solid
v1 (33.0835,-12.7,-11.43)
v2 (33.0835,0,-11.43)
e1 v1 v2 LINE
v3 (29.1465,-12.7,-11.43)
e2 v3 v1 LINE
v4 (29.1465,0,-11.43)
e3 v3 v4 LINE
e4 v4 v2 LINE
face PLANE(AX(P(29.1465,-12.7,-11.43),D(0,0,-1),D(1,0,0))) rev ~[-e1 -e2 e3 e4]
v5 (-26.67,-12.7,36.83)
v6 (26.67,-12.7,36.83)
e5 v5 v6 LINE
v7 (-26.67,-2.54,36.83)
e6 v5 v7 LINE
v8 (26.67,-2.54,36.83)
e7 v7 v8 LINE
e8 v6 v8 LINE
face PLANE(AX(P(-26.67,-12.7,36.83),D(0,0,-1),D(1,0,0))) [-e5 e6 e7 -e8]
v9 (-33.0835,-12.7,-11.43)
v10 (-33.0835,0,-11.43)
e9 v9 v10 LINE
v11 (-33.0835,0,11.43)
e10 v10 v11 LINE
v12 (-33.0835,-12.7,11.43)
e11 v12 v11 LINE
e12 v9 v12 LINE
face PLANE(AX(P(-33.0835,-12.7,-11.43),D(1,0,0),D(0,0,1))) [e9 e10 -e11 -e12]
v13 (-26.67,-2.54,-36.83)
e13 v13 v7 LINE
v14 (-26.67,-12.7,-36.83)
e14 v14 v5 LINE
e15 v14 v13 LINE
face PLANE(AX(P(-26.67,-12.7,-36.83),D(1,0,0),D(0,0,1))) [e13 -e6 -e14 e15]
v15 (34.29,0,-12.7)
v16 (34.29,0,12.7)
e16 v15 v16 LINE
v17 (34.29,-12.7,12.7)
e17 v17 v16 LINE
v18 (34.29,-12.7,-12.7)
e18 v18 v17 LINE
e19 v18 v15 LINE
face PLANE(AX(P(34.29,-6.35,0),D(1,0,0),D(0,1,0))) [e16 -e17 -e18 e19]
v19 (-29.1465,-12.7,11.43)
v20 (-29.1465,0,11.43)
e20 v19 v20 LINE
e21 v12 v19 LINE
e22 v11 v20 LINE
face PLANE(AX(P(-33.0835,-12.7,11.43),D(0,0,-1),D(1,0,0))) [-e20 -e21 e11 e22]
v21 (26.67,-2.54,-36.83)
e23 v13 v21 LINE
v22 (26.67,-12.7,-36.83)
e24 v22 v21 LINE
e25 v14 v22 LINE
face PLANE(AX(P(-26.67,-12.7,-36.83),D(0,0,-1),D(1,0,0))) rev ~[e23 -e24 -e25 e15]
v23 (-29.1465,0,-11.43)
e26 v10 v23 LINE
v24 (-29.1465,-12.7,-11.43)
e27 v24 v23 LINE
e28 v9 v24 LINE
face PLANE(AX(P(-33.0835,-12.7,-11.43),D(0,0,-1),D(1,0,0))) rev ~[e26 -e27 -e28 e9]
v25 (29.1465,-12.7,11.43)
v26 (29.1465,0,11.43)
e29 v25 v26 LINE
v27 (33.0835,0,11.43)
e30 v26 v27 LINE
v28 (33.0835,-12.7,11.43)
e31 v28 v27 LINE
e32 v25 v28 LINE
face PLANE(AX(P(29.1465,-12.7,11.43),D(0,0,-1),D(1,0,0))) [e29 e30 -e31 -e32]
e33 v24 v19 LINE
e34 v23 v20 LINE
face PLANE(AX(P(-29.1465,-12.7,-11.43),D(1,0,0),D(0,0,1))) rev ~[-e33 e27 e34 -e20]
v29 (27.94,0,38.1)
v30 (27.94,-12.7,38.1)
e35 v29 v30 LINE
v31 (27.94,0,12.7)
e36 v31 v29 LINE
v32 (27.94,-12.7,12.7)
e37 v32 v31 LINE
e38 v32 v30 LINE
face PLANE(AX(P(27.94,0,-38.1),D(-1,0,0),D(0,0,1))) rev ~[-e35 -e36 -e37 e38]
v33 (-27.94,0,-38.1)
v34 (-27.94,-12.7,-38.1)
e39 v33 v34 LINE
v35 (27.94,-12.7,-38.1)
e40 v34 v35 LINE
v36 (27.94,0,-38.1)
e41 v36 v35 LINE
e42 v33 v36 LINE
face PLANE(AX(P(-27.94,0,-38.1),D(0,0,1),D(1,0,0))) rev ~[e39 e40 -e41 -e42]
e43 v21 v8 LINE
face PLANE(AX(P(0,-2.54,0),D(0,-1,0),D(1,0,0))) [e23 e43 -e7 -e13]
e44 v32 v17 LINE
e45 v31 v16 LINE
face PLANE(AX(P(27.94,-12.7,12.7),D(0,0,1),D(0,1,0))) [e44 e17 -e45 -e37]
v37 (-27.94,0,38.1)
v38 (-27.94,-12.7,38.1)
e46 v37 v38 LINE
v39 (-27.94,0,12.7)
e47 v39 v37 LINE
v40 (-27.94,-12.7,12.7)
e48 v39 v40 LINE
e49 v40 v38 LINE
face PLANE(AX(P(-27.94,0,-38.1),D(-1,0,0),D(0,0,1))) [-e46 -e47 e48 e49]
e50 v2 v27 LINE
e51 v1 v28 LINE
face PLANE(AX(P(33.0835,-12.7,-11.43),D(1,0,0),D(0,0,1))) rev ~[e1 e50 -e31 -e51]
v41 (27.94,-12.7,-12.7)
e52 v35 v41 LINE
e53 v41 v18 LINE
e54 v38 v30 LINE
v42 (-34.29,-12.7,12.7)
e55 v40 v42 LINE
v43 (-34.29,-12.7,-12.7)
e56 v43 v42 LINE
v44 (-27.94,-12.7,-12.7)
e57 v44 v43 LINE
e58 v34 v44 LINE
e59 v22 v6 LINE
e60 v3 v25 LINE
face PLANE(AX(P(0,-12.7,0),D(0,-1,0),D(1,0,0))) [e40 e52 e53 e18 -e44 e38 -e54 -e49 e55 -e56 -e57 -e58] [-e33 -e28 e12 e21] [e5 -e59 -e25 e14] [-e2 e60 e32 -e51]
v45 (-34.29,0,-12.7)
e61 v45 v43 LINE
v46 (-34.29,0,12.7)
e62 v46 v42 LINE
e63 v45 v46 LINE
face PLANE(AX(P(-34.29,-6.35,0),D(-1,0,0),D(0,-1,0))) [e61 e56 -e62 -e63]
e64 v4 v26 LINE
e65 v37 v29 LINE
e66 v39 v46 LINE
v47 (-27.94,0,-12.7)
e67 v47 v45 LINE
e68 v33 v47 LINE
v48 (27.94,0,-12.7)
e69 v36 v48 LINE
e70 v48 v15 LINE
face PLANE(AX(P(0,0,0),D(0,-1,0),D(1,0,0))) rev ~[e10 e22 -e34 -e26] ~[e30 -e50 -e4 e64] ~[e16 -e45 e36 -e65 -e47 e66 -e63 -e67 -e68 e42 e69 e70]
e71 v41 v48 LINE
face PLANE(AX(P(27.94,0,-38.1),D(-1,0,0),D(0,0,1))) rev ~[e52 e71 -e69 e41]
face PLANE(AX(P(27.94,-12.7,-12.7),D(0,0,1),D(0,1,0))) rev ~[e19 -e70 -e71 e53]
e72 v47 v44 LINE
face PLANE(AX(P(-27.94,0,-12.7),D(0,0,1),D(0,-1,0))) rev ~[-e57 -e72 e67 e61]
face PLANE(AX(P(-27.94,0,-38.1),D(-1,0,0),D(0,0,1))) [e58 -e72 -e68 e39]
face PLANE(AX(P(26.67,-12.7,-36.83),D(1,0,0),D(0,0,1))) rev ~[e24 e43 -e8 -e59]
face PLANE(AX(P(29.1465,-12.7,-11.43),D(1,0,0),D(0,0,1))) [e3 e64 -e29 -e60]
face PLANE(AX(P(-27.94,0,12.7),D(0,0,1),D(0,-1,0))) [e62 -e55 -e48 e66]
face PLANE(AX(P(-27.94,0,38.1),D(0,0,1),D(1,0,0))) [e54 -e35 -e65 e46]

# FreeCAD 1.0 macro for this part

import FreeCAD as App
import Part
import Sketcher

V = App.Vector
Q = App.Units.Quantity


def add_polygon(sketch, points):
    """Adds a closed chain of lines whose ends are joined by coincident constraints."""
    first, n = sketch.GeometryCount, len(points)
    for a, b in zip(points, points[1:] + points[:1]):
        sketch.addGeometry(Part.LineSegment(App.Vector(*a, 0), App.Vector(*b, 0)), False)
    for i in range(n):
        sketch.addConstraint(Sketcher.Constraint("Coincident", first + i, 2, first + (i + 1) % n, 1))

doc = App.newDocument("Part")
params = doc.addObject("Spreadsheet::Sheet", "Params")
for row, (alias, value) in enumerate([
    ("sketch1_height", "3 in"),
    ("sketch1_width", "2.2 in"),
    ("pad1_length", "0.5 in"),
    ("sketch2_width", "2.1 in"),
    ("sketch2_height", "2.9 in"),
    ("pocket1_length", "0.4 in"),
    ("sketch3_height", "1 in"),
    ("sketch3_width", "0.5 in"),
    ("pad2_length", "0.25 in"),
    ("sketch4_height", "1 in"),
    ("sketch4_width", "0.5 in"),
    ("pad3_length", "0.25 in"),
    ("sketch5_height", "0.9 in"),
    ("sketch5_width", "0.155 in"),
    ("pocket2_length", "1 in"),
], start=1):
    params.set(f"A{row}", alias)
    params.set(f"B{row}", "=" + value)
    params.setAlias(f"B{row}", alias)

body = doc.addObject("PartDesign::Body", "Body")

# Sketch on XZ plane
sketch1 = body.newObject("Sketcher::SketchObject", "Sketch")
sketch1.AttachmentSupport = (doc.getObject("XZ_Plane"), [""])
sketch1.MapMode = "FlatFace"
add_polygon(sketch1, [(-28, 38), (-28, -38), (28, -38), (28, 38)])  # lines 0-3
sketch1.addConstraint(Sketcher.Constraint("Vertical", 0))
sketch1.addConstraint(Sketcher.Constraint("Horizontal", 1))
sketch1.addConstraint(Sketcher.Constraint("Vertical", 2))
sketch1.addConstraint(Sketcher.Constraint("Horizontal", 3))
sketch1.addConstraint(Sketcher.Constraint("Symmetric", 0, 2, 2, 2, -1, 1))
sketch1.addConstraint(Sketcher.Constraint("DistanceY", 0, 2, 0, 1, Q("3 in")))
sketch1.addConstraint(Sketcher.Constraint("DistanceX", 1, 1, 1, 2, Q("2.2 in")))
sketch1.setExpression("Constraints[9]", "Params.sketch1_height")
sketch1.setExpression("Constraints[10]", "Params.sketch1_width")
pad1 = body.newObject("PartDesign::Pad", "Pad")
pad1.Profile = sketch1
pad1.setExpression("Length", "Params.pad1_length")

# Sketch on XZ plane
sketch2 = body.newObject("Sketcher::SketchObject", "Sketch001")
sketch2.AttachmentSupport = (doc.getObject("XZ_Plane"), [""])
sketch2.MapMode = "FlatFace"
sketch2.AttachmentOffset = App.Placement(V(0, 0, 0.5 * 25.4), App.Rotation())
add_polygon(sketch2, [(-27, 37), (-27, -37), (27, -37), (27, 37)])  # lines 0-3
sketch2.addConstraint(Sketcher.Constraint("Vertical", 0))
sketch2.addConstraint(Sketcher.Constraint("Horizontal", 1))
sketch2.addConstraint(Sketcher.Constraint("Vertical", 2))
sketch2.addConstraint(Sketcher.Constraint("Horizontal", 3))
sketch2.addConstraint(Sketcher.Constraint("Symmetric", 0, 2, 2, 2, -1, 1))
sketch2.addConstraint(Sketcher.Constraint("DistanceX", 1, 1, 1, 2, Q("2.1 in")))
sketch2.addConstraint(Sketcher.Constraint("DistanceY", 0, 2, 0, 1, Q("2.9 in")))
sketch2.setExpression("Constraints[9]", "Params.sketch2_width")
sketch2.setExpression("Constraints[10]", "Params.sketch2_height")
pocket1 = body.newObject("PartDesign::Pocket", "Pocket")
pocket1.Profile = sketch2
pocket1.setExpression("Length", "Params.pocket1_length")

# Sketch on YZ plane
sketch3 = body.newObject("Sketcher::SketchObject", "Sketch002")
sketch3.AttachmentSupport = (doc.getObject("YZ_Plane"), [""])
sketch3.MapMode = "FlatFace"
sketch3.AttachmentOffset = App.Placement(V(0, 0, 1.1 * 25.4), App.Rotation())
add_polygon(sketch3, [(-13, 13), (-13, -13), (0, -13), (0, 13)])  # lines 0-3
sketch3.addConstraint(Sketcher.Constraint("Vertical", 0))
sketch3.addConstraint(Sketcher.Constraint("Horizontal", 1))
sketch3.addConstraint(Sketcher.Constraint("Vertical", 2))
sketch3.addConstraint(Sketcher.Constraint("Horizontal", 3))
sketch3.addConstraint(Sketcher.Constraint("Symmetric", 1, 2, 2, 2, -1, 1))
sketch3.addConstraint(Sketcher.Constraint("DistanceY", 0, 2, 0, 1, Q("1 in")))
sketch3.addConstraint(Sketcher.Constraint("DistanceX", 1, 1, 1, 2, Q("0.5 in")))
sketch3.setExpression("Constraints[9]", "Params.sketch3_height")
sketch3.setExpression("Constraints[10]", "Params.sketch3_width")
pad2 = body.newObject("PartDesign::Pad", "Pad001")
pad2.Profile = sketch3
pad2.setExpression("Length", "Params.pad2_length")

# Sketch on YZ plane
sketch4 = body.newObject("Sketcher::SketchObject", "Sketch003")
sketch4.AttachmentSupport = (doc.getObject("YZ_Plane"), [""])
sketch4.MapMode = "FlatFace"
sketch4.AttachmentOffset = App.Placement(V(0, 0, -1.1 * 25.4), App.Rotation())
add_polygon(sketch4, [(0, 13), (0, -13), (-13, -13), (-13, 13)])  # lines 0-3
sketch4.addConstraint(Sketcher.Constraint("Vertical", 0))
sketch4.addConstraint(Sketcher.Constraint("Horizontal", 1))
sketch4.addConstraint(Sketcher.Constraint("Vertical", 2))
sketch4.addConstraint(Sketcher.Constraint("Horizontal", 3))
sketch4.addConstraint(Sketcher.Constraint("Symmetric", 0, 2, 3, 2, -1, 1))
sketch4.addConstraint(Sketcher.Constraint("DistanceY", 0, 2, 0, 1, Q("1 in")))
sketch4.addConstraint(Sketcher.Constraint("DistanceX", 1, 2, 1, 1, Q("0.5 in")))
sketch4.setExpression("Constraints[9]", "Params.sketch4_height")
sketch4.setExpression("Constraints[10]", "Params.sketch4_width")
pad3 = body.newObject("PartDesign::Pad", "Pad002")
pad3.Profile = sketch4
pad3.setExpression("Length", "Params.pad3_length")
pad3.Reversed = True

# Sketch on XZ plane
sketch5 = body.newObject("Sketcher::SketchObject", "Sketch004")
sketch5.AttachmentSupport = (doc.getObject("XZ_Plane"), [""])
sketch5.MapMode = "FlatFace"
sketch5.AttachmentOffset = App.Placement(V(0, 0, 0.5 * 25.4), App.Rotation())
add_polygon(sketch5, [(-33.1, 11.4), (-33.1, -11.4), (-29.1, -11.4), (-29.1, 11.4)])  # lines 0-3
add_polygon(sketch5, [(29.1, 11.4), (29.1, -11.4), (33.1, -11.4), (33.1, 11.4)])  # lines 4-7
sketch5.addConstraint(Sketcher.Constraint("Vertical", 0))
sketch5.addConstraint(Sketcher.Constraint("Horizontal", 1))
sketch5.addConstraint(Sketcher.Constraint("Vertical", 2))
sketch5.addConstraint(Sketcher.Constraint("Horizontal", 3))
sketch5.addConstraint(Sketcher.Constraint("Vertical", 4))
sketch5.addConstraint(Sketcher.Constraint("Horizontal", 5))
sketch5.addConstraint(Sketcher.Constraint("Vertical", 6))
sketch5.addConstraint(Sketcher.Constraint("Horizontal", 7))
sketch5.addConstraint(Sketcher.Constraint("Symmetric", 2, 2, 4, 2, -1, 1))
sketch5.addConstraint(Sketcher.Constraint("Symmetric", 0, 2, 6, 2, -1, 1))
sketch5.addConstraint(Sketcher.Constraint("Horizontal", 1, 2, 4, 2))
sketch5.addConstraint(Sketcher.Constraint("DistanceY", 0, 2, 0, 1, Q("0.9 in")))
sketch5.addConstraint(Sketcher.Constraint("DistanceX", 1, 1, 1, 2, Q("0.155 in")))
sketch5.addConstraint(Sketcher.Constraint("DistanceX", 0, 2, 4, 2, Q("2.45 in")))
sketch5.setExpression("Constraints[19]", "Params.sketch5_height")
sketch5.setExpression("Constraints[20]", "Params.sketch5_width")
pocket2 = body.newObject("PartDesign::Pocket", "Pocket001")
pocket2.Profile = sketch5
pocket2.setExpression("Length", "Params.pocket2_length")

doc.recompute()
